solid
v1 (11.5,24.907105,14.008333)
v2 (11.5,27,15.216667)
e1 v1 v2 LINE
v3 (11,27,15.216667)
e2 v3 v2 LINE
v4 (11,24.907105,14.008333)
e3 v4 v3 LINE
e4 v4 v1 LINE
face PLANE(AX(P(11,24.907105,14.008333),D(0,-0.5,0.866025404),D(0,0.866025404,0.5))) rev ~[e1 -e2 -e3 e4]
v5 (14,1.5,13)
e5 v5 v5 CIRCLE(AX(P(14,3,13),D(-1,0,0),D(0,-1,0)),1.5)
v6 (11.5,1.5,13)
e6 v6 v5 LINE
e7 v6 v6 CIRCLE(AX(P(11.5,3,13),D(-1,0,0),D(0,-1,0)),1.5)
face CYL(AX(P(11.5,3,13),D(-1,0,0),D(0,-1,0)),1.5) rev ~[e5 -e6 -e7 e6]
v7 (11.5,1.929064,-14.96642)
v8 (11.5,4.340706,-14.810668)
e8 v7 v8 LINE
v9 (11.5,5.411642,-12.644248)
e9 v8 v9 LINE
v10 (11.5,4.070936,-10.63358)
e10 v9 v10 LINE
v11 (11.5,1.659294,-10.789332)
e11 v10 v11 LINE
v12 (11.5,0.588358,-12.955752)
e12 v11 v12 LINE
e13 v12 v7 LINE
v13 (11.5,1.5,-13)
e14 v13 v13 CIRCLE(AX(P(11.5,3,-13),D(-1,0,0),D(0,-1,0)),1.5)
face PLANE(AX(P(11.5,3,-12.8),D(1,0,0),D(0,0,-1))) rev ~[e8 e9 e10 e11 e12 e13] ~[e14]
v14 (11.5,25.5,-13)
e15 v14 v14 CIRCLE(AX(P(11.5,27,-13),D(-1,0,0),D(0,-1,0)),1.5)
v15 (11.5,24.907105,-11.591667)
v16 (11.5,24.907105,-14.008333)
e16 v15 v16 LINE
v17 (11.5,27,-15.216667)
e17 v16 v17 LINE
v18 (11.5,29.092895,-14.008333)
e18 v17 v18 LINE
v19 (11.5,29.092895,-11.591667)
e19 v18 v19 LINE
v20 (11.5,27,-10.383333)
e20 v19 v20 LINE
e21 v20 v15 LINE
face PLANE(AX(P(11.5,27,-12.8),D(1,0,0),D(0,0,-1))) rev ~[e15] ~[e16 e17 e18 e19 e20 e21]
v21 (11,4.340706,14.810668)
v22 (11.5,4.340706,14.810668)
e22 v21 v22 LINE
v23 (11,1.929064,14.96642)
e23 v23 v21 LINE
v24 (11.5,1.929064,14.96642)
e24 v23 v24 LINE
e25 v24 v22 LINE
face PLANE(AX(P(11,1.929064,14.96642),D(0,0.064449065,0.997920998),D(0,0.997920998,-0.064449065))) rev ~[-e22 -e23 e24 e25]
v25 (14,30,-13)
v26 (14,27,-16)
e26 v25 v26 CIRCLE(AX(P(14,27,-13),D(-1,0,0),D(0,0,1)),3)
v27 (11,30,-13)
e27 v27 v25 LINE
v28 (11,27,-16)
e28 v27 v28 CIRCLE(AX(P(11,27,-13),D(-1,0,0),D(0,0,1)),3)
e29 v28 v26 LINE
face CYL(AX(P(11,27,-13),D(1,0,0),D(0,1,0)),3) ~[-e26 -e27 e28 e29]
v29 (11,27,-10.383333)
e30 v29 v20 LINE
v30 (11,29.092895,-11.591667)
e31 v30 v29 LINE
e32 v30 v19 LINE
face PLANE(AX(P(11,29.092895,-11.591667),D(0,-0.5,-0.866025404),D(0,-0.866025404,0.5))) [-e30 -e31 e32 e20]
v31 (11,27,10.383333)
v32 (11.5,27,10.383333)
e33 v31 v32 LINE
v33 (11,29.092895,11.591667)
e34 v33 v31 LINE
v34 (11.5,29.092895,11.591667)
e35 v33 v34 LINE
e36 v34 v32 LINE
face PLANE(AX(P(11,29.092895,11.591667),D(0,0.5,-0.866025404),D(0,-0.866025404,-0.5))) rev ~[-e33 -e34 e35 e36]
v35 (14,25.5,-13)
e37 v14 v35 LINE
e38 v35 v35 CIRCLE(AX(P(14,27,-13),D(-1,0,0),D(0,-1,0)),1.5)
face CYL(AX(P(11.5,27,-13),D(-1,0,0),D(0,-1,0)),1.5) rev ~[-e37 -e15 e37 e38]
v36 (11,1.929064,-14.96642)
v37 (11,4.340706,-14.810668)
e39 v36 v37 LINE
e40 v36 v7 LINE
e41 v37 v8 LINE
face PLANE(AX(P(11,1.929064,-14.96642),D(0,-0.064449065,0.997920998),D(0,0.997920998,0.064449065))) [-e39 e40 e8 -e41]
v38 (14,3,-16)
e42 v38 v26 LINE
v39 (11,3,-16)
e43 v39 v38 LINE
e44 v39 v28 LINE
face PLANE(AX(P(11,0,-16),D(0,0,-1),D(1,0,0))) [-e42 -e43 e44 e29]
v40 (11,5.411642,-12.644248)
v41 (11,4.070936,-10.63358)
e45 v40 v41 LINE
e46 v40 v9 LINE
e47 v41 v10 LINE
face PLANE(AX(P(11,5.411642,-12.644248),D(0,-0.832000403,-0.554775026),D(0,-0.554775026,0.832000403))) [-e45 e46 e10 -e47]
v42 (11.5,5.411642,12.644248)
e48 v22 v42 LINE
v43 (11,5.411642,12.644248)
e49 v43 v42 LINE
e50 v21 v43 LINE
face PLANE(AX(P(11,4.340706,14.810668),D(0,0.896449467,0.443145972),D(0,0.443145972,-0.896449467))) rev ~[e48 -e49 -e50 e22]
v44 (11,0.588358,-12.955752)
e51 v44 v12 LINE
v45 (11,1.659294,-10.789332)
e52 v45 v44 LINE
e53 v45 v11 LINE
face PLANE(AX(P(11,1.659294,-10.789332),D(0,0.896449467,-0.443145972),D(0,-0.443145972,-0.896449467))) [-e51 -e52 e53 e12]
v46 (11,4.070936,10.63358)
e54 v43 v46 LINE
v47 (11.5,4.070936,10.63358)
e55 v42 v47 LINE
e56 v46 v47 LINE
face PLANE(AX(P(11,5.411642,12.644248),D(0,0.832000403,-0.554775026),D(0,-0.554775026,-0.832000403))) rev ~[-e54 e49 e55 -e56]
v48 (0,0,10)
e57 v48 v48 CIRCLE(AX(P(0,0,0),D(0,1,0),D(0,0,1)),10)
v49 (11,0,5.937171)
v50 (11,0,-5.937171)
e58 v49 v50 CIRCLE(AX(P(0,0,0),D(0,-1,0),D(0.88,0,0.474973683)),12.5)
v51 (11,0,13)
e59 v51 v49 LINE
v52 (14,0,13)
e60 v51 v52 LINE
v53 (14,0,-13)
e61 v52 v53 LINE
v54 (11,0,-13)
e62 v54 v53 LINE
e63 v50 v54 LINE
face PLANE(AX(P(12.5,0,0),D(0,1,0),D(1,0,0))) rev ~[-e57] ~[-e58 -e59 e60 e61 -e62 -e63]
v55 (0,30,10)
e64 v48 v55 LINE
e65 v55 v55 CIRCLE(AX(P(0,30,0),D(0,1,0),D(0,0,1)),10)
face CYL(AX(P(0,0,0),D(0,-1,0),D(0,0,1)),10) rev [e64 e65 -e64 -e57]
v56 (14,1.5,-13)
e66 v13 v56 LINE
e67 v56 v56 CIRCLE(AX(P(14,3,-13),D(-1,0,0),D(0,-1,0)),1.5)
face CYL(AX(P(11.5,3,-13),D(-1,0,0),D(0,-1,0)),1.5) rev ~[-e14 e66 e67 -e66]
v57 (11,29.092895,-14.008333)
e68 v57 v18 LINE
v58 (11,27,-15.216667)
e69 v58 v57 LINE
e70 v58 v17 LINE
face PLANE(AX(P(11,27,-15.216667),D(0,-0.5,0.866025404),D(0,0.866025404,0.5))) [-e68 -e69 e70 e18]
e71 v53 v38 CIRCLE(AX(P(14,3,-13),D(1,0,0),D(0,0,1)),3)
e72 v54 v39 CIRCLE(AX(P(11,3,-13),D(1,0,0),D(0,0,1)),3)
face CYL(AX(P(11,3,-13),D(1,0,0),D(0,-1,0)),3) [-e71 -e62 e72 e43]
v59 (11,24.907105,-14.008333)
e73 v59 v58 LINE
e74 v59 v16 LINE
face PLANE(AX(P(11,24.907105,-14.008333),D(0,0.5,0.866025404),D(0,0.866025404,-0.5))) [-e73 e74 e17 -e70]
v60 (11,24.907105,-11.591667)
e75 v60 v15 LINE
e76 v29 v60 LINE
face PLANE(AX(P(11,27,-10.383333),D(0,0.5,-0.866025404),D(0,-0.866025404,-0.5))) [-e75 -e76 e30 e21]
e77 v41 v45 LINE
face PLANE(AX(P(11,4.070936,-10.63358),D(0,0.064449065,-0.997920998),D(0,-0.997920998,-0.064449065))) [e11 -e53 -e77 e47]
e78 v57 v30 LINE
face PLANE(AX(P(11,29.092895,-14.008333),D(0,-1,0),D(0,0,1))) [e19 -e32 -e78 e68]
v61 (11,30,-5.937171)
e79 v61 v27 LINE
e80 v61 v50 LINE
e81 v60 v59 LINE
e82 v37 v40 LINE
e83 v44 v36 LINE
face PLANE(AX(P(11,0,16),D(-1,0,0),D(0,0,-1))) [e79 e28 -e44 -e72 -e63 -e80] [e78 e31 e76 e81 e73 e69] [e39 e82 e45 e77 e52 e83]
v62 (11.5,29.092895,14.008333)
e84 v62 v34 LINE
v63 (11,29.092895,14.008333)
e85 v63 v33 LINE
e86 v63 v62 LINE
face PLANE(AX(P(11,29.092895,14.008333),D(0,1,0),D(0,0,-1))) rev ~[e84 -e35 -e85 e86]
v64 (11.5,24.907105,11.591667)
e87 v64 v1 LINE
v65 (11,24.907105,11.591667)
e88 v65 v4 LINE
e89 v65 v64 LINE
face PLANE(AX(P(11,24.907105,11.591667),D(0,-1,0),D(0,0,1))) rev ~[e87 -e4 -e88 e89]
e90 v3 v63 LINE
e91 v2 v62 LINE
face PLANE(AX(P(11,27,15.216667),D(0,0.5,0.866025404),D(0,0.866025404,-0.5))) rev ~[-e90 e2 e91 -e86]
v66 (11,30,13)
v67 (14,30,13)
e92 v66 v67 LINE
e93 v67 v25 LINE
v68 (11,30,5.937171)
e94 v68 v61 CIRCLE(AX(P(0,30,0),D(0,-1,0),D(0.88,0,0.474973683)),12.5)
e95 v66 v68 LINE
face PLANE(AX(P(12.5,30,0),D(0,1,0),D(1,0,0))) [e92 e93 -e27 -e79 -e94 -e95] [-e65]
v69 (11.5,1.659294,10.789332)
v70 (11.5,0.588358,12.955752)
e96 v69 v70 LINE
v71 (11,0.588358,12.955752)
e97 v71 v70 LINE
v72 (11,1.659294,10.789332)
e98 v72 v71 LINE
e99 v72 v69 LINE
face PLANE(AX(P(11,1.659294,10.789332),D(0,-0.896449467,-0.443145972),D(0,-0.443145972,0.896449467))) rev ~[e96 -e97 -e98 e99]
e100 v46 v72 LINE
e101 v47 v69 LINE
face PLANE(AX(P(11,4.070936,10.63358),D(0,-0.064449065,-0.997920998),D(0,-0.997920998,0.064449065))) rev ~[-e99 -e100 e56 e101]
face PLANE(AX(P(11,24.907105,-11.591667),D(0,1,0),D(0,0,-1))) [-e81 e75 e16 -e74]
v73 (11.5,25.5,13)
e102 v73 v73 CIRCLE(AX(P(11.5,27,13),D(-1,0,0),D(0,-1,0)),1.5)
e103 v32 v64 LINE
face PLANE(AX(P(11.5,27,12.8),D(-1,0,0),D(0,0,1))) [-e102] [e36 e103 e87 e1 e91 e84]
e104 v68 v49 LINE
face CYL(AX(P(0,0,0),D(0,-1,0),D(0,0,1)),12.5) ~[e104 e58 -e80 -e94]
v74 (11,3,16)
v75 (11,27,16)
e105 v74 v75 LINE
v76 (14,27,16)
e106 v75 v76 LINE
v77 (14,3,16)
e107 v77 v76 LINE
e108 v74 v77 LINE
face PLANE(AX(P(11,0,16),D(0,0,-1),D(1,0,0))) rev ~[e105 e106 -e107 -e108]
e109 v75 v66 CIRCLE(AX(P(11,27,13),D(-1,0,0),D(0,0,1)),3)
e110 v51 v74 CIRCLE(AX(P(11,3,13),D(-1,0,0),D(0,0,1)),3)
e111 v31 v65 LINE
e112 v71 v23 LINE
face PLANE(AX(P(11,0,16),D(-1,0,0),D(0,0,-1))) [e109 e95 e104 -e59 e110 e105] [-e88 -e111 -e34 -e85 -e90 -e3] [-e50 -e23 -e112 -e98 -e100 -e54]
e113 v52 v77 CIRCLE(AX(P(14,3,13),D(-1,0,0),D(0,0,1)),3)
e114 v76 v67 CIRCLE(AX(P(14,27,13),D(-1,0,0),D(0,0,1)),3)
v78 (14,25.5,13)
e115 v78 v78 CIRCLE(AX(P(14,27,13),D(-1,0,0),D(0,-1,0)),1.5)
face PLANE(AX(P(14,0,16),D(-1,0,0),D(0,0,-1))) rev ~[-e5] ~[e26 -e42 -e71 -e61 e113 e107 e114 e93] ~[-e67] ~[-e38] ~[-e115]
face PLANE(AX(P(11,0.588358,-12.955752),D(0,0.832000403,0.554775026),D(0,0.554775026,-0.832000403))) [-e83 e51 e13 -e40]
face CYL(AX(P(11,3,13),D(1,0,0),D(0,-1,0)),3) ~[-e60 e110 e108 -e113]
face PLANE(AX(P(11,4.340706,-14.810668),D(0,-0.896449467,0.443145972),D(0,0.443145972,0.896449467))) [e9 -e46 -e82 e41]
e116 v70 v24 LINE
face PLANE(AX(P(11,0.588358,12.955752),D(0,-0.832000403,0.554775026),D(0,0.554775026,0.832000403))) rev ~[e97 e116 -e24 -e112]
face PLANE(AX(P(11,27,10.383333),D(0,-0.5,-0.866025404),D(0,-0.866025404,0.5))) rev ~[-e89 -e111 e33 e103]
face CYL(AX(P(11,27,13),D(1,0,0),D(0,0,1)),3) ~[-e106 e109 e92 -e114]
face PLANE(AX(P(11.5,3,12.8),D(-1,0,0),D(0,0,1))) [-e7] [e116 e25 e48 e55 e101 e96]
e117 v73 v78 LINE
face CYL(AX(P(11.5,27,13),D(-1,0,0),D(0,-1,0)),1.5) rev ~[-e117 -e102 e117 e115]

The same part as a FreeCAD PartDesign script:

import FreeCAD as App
import Part
import Sketcher
from FreeCAD import Vector
Q = App.Units.Quantity


def edges_at(feature, points):
    """Names of the edges that pass closest to the given points."""
    edges = feature.Shape.Edges
    near = lambda p: min(range(len(edges)), key=lambda i: edges[i].distToShape(Part.Vertex(*p))[0])
    return sorted({f"Edge{near(p) + 1}" for p in points})

doc = App.newDocument("Part")
body = doc.addObject("PartDesign::Body", "Body")

# Sketch on XZ plane
sketch1 = body.newObject("Sketcher::SketchObject", "Sketch")
sketch1.AttachmentSupport = (doc.getObject("XZ_Plane"), [""])
sketch1.MapMode = "FlatFace"
sketch1.addGeometry([
    Part.Circle(Vector(0, 0, 0), Vector(0, 0, 1), 12.5),
    Part.Circle(Vector(0, 0, 0), Vector(0, 0, 1), 10),
], False)
sketch1.addConstraint([
    Sketcher.Constraint("Coincident", 0, 3, -1, 1),
    Sketcher.Constraint("Coincident", 1, 3, -1, 1),
    Sketcher.Constraint("Diameter", 0, Q("25 mm")),
    Sketcher.Constraint("Diameter", 1, Q("20 mm")),
])
pad1 = body.newObject("PartDesign::Pad", "Pad")
pad1.Profile = sketch1
pad1.Length = 30
pad1.Reversed = True

# Sketch on XZ plane
sketch2 = body.newObject("Sketcher::SketchObject", "Sketch001")
sketch2.AttachmentSupport = (doc.getObject("XZ_Plane"), [""])
sketch2.MapMode = "FlatFace"
sketch2.addGeometry([
    Part.LineSegment(Vector(11, -16, 0), Vector(11, 16, 0)),
    Part.LineSegment(Vector(11, 16, 0), Vector(14, 16, 0)),
    Part.LineSegment(Vector(14, 16, 0), Vector(14, -16, 0)),
    Part.LineSegment(Vector(14, -16, 0), Vector(11, -16, 0)),
], False)
sketch2.addConstraint([
    Sketcher.Constraint("Coincident", 0, 2, 1, 1),
    Sketcher.Constraint("Coincident", 1, 2, 2, 1),
    Sketcher.Constraint("Coincident", 2, 2, 3, 1),
    Sketcher.Constraint("Coincident", 3, 2, 0, 1),
    Sketcher.Constraint("Vertical", 0),
    Sketcher.Constraint("Horizontal", 1),
    Sketcher.Constraint("Vertical", 2),
    Sketcher.Constraint("Horizontal", 3),
    Sketcher.Constraint("DistanceX", 1, 1, 1, 2, Q("3 mm")),
    Sketcher.Constraint("DistanceY", 0, 1, 0, 2, Q("32 mm")),
    Sketcher.Constraint("DistanceX", -1, 1, 0, 2, Q("11 mm")),
    Sketcher.Constraint("DistanceY", -1, 1, 0, 2, Q("16 mm")),
])
pad2 = body.newObject("PartDesign::Pad", "Pad001")
pad2.Profile = sketch2
pad2.Length = 30
pad2.Reversed = True

# Sketch on YZ plane
sketch3 = body.newObject("Sketcher::SketchObject", "Sketch002")
sketch3.AttachmentSupport = (doc.getObject("YZ_Plane"), [""])
sketch3.MapMode = "FlatFace"
sketch3.AttachmentOffset = App.Placement(Vector(0, 0, 11), App.Rotation())
sketch3.addGeometry([
    Part.LineSegment(Vector(27, 15.216667, 0), Vector(29.092895, 14.008333, 0)),  # 0
    Part.LineSegment(Vector(29.092895, 14.008333, 0), Vector(29.092895, 11.591667, 0)),  # 1
    Part.LineSegment(Vector(29.092895, 11.591667, 0), Vector(27, 10.383333, 0)),  # 2
    Part.LineSegment(Vector(27, 10.383333, 0), Vector(24.907105, 11.591667, 0)),  # 3
    Part.LineSegment(Vector(24.907105, 11.591667, 0), Vector(24.907105, 14.008333, 0)),  # 4
    Part.LineSegment(Vector(24.907105, 14.008333, 0), Vector(27, 15.216667, 0)),  # 5
    Part.LineSegment(Vector(0.588358, -12.955752, 0), Vector(1.659294, -10.789332, 0)),  # 6
    Part.LineSegment(Vector(1.659294, -10.789332, 0), Vector(4.070936, -10.63358, 0)),  # 7
    Part.LineSegment(Vector(4.070936, -10.63358, 0), Vector(5.411642, -12.644248, 0)),  # 8
    Part.LineSegment(Vector(5.411642, -12.644248, 0), Vector(4.340706, -14.810668, 0)),  # 9
    Part.LineSegment(Vector(4.340706, -14.810668, 0), Vector(1.929064, -14.96642, 0)),  # 10
    Part.LineSegment(Vector(1.929064, -14.96642, 0), Vector(0.588358, -12.955752, 0)),  # 11
    Part.LineSegment(Vector(0.588358, 12.955752, 0), Vector(1.929064, 14.96642, 0)),  # 12
    Part.LineSegment(Vector(1.929064, 14.96642, 0), Vector(4.340706, 14.810668, 0)),  # 13
    Part.LineSegment(Vector(4.340706, 14.810668, 0), Vector(5.411642, 12.644248, 0)),  # 14
    Part.LineSegment(Vector(5.411642, 12.644248, 0), Vector(4.070936, 10.63358, 0)),  # 15
    Part.LineSegment(Vector(4.070936, 10.63358, 0), Vector(1.659294, 10.789332, 0)),  # 16
    Part.LineSegment(Vector(1.659294, 10.789332, 0), Vector(0.588358, 12.955752, 0)),  # 17
    Part.LineSegment(Vector(27, -15.216667, 0), Vector(24.907105, -14.008333, 0)),  # 18
    Part.LineSegment(Vector(24.907105, -14.008333, 0), Vector(24.907105, -11.591667, 0)),  # 19
    Part.LineSegment(Vector(24.907105, -11.591667, 0), Vector(27, -10.383333, 0)),  # 20
    Part.LineSegment(Vector(27, -10.383333, 0), Vector(29.092895, -11.591667, 0)),  # 21
    Part.LineSegment(Vector(29.092895, -11.591667, 0), Vector(29.092895, -14.008333, 0)),  # 22
    Part.LineSegment(Vector(29.092895, -14.008333, 0), Vector(27, -15.216667, 0)),  # 23
], False)
sketch3.addConstraint([
    Sketcher.Constraint("Coincident", 0, 2, 1, 1),
    Sketcher.Constraint("Coincident", 1, 2, 2, 1),
    Sketcher.Constraint("Coincident", 2, 2, 3, 1),
    Sketcher.Constraint("Coincident", 3, 2, 4, 1),
    Sketcher.Constraint("Coincident", 4, 2, 5, 1),
    Sketcher.Constraint("Coincident", 5, 2, 0, 1),
    Sketcher.Constraint("Coincident", 6, 2, 7, 1),
    Sketcher.Constraint("Coincident", 7, 2, 8, 1),
    Sketcher.Constraint("Coincident", 8, 2, 9, 1),
    Sketcher.Constraint("Coincident", 9, 2, 10, 1),
    Sketcher.Constraint("Coincident", 10, 2, 11, 1),
    Sketcher.Constraint("Coincident", 11, 2, 6, 1),
    Sketcher.Constraint("Coincident", 12, 2, 13, 1),
    Sketcher.Constraint("Coincident", 13, 2, 14, 1),
    Sketcher.Constraint("Coincident", 14, 2, 15, 1),
    Sketcher.Constraint("Coincident", 15, 2, 16, 1),
    Sketcher.Constraint("Coincident", 16, 2, 17, 1),
    Sketcher.Constraint("Coincident", 17, 2, 12, 1),
    Sketcher.Constraint("Coincident", 18, 2, 19, 1),
    Sketcher.Constraint("Coincident", 19, 2, 20, 1),
    Sketcher.Constraint("Coincident", 20, 2, 21, 1),
    Sketcher.Constraint("Coincident", 21, 2, 22, 1),
    Sketcher.Constraint("Coincident", 22, 2, 23, 1),
    Sketcher.Constraint("Coincident", 23, 2, 18, 1),
    Sketcher.Constraint("Vertical", 1),
    Sketcher.Constraint("Vertical", 4),
    Sketcher.Constraint("Vertical", 19),
    Sketcher.Constraint("Vertical", 22),
    Sketcher.Constraint("Symmetric", 10, 2, 12, 2, -1),
    Sketcher.Constraint("Symmetric", 9, 2, 13, 2, -1),
    Sketcher.Constraint("Symmetric", 8, 2, 14, 2, -1),
    Sketcher.Constraint("Symmetric", 7, 2, 15, 2, -1),
    Sketcher.Constraint("Symmetric", 6, 2, 16, 2, -1),
    Sketcher.Constraint("Symmetric", 11, 2, 17, 2, -1),
    Sketcher.Constraint("Symmetric", 4, 2, 18, 2, -1),
    Sketcher.Constraint("Symmetric", 2, 2, 20, 2, -1),
    Sketcher.Constraint("Symmetric", 1, 2, 21, 2, -1),
    Sketcher.Constraint("Symmetric", 5, 2, 23, 2, -1),
    Sketcher.Constraint("Parallel", 0, 3),
    Sketcher.Constraint("Parallel", 2, 5),
    Sketcher.Constraint("Parallel", 6, 9),
    Sketcher.Constraint("Parallel", 7, 10),
    Sketcher.Constraint("Parallel", 8, 11),
    Sketcher.Constraint("Parallel", 3, 18),
    Sketcher.Constraint("Parallel", 5, 20),
    Sketcher.Constraint("Parallel", 20, 23),
    Sketcher.Constraint("Horizontal", 1, 2, 3, 2),
    Sketcher.Constraint("Horizontal", 0, 2, 4, 2),
    Sketcher.Constraint("Equal", 5, 6),
    Sketcher.Constraint("Equal", 6, 7),
    Sketcher.Constraint("Equal", 7, 8),
    Sketcher.Constraint("Equal", 8, 9),
    Sketcher.Constraint("Angle", 0, Q("-30 deg")),
    Sketcher.Constraint("DistanceX", -1, 1, 2, 2, Q("27 mm")),
    Sketcher.Constraint("DistanceY", 7, 2, 12, 2, Q("25.6 mm")),
    Sketcher.Constraint("DistanceY", 2, 2, 0, 2, Q("3.625 mm")),
    Sketcher.Constraint("DistanceY", 6, 2, 3, 2, Q("22.380999 mm")),
    Sketcher.Constraint("DistanceY", 9, 2, 2, 2, Q("25.194001 mm")),
    Sketcher.Constraint("DistanceX", 6, 2, 1, 2, Q("27.433601 mm")),
    Sketcher.Constraint("DistanceX", 9, 2, 3, 2, Q("20.566399 mm")),
    Sketcher.Constraint("DistanceY", 1, 2, 1, 1, Q("2.416667 mm")),
    Sketcher.Constraint("DistanceY", 7, 2, -1, 1, Q("10.63358 mm")),
])
pocket1 = body.newObject("PartDesign::Pocket", "Pocket")
pocket1.Profile = sketch3
pocket1.Length = 0.5
pocket1.Reversed = True

# Sketch on YZ plane
sketch4 = body.newObject("Sketcher::SketchObject", "Sketch003")
sketch4.AttachmentSupport = (doc.getObject("YZ_Plane"), [""])
sketch4.MapMode = "FlatFace"
sketch4.AttachmentOffset = App.Placement(Vector(0, 0, 11.5), App.Rotation())
sketch4.addGeometry([
    Part.Circle(Vector(27, -13, 0), Vector(0, 0, 1), 1.5),
    Part.Circle(Vector(27, 13, 0), Vector(0, 0, 1), 1.5),
    Part.Circle(Vector(3, 13, 0), Vector(0, 0, 1), 1.5),
    Part.Circle(Vector(3, -13, 0), Vector(0, 0, 1), 1.5),
], False)
sketch4.addConstraint([
    Sketcher.Constraint("Equal", 0, 1),
    Sketcher.Constraint("Equal", 1, 2),
    Sketcher.Constraint("Equal", 2, 3),
    Sketcher.Constraint("Symmetric", 0, 3, 1, 3, -1),
    Sketcher.Constraint("Symmetric", 2, 3, 3, 3, -1),
    Sketcher.Constraint("Horizontal", 1, 3, 2, 3),
    Sketcher.Constraint("Diameter", 0, Q("3 mm")),
    Sketcher.Constraint("DistanceX", -1, 1, 0, 3, Q("27 mm")),
    Sketcher.Constraint("DistanceY", 0, 3, -1, 1, Q("13 mm")),
    Sketcher.Constraint("DistanceX", -1, 1, 2, 3, Q("3 mm")),
])
pocket2 = body.newObject("PartDesign::Pocket", "Pocket001")
pocket2.Profile = sketch4
pocket2.Type = "ThroughAll"
pocket2.Reversed = True
doc.recompute()

fillet = body.newObject("PartDesign::Fillet", "Fillet")
fillet.Base = (pocket2, edges_at(pocket2, [
    (12.5, 30, 16),
    (12.5, 30, -16),
    (12.5, 0, -16),
    (12.5, 0, 16),
]))
fillet.Radius = 3

doc.recompute()
